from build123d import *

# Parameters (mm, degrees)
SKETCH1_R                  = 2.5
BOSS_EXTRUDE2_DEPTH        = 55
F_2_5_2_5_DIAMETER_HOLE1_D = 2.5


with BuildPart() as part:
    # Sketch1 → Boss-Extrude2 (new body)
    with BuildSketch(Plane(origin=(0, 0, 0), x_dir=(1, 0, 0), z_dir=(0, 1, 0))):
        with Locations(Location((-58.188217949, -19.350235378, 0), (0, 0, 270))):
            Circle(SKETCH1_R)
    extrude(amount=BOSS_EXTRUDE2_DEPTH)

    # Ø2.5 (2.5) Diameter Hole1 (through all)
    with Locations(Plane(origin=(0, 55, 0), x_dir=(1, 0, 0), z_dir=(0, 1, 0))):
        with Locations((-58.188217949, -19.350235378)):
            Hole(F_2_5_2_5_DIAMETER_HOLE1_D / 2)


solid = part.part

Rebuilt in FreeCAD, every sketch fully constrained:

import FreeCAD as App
import Part
import Sketcher

V = App.Vector

doc = App.newDocument("Part")
body = doc.addObject("PartDesign::Body", "Body")

# Sketch on XZ plane
sketch1 = body.newObject("Sketcher::SketchObject", "Sketch")
sketch1.AttachmentSupport = (doc.getObject("XZ_Plane"), [""])
sketch1.MapMode = "FlatFace"
sketch1.addGeometry(Part.Circle(V(-58.2, 19.4, 0), V(0, 0, 1), 2.5), False)
sketch1.addConstraint([
    Sketcher.Constraint("Diameter", 0, 5.0),
    Sketcher.Constraint("DistanceX", 0, 3, -1, 1, 58.188218),
    Sketcher.Constraint("DistanceY", -1, 1, 0, 3, 19.350235),
])
pad1 = body.newObject("PartDesign::Pad", "Pad")
pad1.Profile = sketch1
pad1.Length = 55
pad1.Reversed = True

# Sketch on XZ plane
sketch2 = body.newObject("Sketcher::SketchObject", "Sketch001")
sketch2.AttachmentSupport = (doc.getObject("XZ_Plane"), [""])
sketch2.MapMode = "FlatFace"
sketch2.AttachmentOffset = App.Placement(V(0, 0, -55), App.Rotation())
sketch2.addGeometry(Part.Circle(V(-58.2, 19.4, 0), V(0, 0, 1), 1.2), False)
sketch2.addConstraint([
    Sketcher.Constraint("Diameter", 0, 2.5),
    Sketcher.Constraint("DistanceX", 0, 3, -1, 1, 58.188218),
    Sketcher.Constraint("DistanceY", -1, 1, 0, 3, 19.350235),
])
doc.recompute()
hole = body.newObject("PartDesign::Hole", "Hole")
hole.Profile = sketch2
hole.ThreadType = "None"
hole.Diameter = 2.5
hole.DepthType = "ThroughAll"
hole.Reversed = True

doc.recompute()
